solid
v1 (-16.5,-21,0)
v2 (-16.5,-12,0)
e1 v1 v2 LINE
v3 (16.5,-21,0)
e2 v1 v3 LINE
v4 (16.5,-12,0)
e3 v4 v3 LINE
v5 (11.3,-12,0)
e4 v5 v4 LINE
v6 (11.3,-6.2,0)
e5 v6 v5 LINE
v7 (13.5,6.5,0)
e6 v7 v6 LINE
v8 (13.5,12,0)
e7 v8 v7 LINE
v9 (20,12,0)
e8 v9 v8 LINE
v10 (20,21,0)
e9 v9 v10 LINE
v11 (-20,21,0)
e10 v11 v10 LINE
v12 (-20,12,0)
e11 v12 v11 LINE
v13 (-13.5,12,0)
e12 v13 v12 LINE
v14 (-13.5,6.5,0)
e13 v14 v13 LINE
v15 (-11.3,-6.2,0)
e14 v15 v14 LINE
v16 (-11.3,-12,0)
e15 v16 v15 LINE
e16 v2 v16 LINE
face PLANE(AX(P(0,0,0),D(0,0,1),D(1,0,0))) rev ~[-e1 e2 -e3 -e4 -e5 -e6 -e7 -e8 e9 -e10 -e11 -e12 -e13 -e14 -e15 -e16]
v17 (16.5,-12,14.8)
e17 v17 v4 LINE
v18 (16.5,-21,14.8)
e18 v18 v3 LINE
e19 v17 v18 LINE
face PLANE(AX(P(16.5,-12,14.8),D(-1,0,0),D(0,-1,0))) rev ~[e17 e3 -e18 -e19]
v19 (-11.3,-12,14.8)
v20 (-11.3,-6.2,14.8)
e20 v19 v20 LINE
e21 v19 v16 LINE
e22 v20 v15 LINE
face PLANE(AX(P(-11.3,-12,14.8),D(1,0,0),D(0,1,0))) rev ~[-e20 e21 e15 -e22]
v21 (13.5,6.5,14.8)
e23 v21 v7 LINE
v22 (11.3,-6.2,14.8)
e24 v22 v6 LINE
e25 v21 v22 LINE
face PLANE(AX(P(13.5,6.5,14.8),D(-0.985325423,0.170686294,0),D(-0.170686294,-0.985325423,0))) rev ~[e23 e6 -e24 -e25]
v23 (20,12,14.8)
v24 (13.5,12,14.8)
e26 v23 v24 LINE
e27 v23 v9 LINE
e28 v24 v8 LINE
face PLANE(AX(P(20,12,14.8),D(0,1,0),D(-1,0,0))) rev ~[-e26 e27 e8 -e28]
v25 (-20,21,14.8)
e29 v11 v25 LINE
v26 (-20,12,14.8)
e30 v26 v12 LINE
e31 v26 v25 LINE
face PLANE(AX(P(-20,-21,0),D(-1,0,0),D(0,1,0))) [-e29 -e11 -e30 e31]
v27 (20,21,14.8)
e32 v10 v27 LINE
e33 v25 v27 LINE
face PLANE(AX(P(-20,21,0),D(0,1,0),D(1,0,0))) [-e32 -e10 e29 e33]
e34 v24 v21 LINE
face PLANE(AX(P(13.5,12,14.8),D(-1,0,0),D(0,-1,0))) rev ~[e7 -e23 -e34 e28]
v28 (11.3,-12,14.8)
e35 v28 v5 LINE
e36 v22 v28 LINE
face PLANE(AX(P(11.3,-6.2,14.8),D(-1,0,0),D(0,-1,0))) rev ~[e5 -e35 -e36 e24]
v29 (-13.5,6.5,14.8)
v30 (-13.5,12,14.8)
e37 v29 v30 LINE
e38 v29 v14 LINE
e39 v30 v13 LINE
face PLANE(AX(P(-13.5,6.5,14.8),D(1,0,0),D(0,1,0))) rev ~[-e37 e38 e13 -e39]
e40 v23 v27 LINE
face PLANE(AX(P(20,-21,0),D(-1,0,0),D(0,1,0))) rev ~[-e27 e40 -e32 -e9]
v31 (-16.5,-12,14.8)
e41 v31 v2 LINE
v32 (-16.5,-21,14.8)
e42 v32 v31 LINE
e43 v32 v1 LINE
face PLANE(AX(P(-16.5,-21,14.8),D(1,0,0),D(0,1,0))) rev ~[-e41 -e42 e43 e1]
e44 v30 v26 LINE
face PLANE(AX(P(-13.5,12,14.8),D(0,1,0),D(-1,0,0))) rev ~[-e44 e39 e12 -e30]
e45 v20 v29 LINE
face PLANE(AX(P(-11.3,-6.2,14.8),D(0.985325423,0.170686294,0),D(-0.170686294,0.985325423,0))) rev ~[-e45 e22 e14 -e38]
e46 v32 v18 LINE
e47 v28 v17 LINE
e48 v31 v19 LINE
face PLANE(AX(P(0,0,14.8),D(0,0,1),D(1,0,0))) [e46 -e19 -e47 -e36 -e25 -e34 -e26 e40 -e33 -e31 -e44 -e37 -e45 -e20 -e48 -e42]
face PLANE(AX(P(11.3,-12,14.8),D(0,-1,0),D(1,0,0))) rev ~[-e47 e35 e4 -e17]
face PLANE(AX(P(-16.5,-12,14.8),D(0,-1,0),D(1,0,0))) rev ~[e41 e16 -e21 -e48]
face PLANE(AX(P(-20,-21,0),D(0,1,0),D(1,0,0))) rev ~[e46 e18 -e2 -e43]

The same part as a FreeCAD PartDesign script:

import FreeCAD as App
import Part
import Sketcher

V = App.Vector


def add_polygon(sketch, points):
    """Adds a closed chain of lines whose ends are joined by coincident constraints."""
    first, n = sketch.GeometryCount, len(points)
    for a, b in zip(points, points[1:] + points[:1]):
        sketch.addGeometry(Part.LineSegment(App.Vector(*a, 0), App.Vector(*b, 0)), False)
    for i in range(n):
        sketch.addConstraint(Sketcher.Constraint("Coincident", first + i, 2, first + (i + 1) % n, 1))

doc = App.newDocument("Part")
body = doc.addObject("PartDesign::Body", "Body")

# Sketch on XY plane
sketch1 = body.newObject("Sketcher::SketchObject", "Sketch")
sketch1.AttachmentSupport = (doc.getObject("XY_Plane"), [""])
sketch1.MapMode = "FlatFace"
add_polygon(sketch1, [(-20, 21), (-20, -21), (20, -21), (20, 21)])  # lines 0-3
sketch1.addConstraint([
    Sketcher.Constraint("Vertical", 0),
    Sketcher.Constraint("Horizontal", 1),
    Sketcher.Constraint("Vertical", 2),
    Sketcher.Constraint("Horizontal", 3),
    Sketcher.Constraint("Symmetric", 0, 2, 2, 2, -1, 1),
    Sketcher.Constraint("DistanceX", 1, 1, 1, 2, 40.0),
    Sketcher.Constraint("DistanceY", 0, 2, 0, 1, 42.0),
])
pad1 = body.newObject("PartDesign::Pad", "Pad")
pad1.Profile = sketch1
pad1.Length = 14.8

# Sketch on XY plane
sketch2 = body.newObject("Sketcher::SketchObject", "Sketch001")
sketch2.AttachmentSupport = (doc.getObject("XY_Plane"), [""])
sketch2.MapMode = "FlatFace"
sketch2.AttachmentOffset = App.Placement(V(0, 0, 14.8), App.Rotation())
add_polygon(sketch2, [(-13.5, 12), (-20, 12), (-20, -21), (-16.5, -21), (-16.5, -12), (-11.3, -12), (-11.3, -6.2), (-13.5, 6.5)])  # lines 0-7
add_polygon(sketch2, [(16.5, -12), (16.5, -21), (20, -21), (20, 12), (13.5, 12), (13.5, 6.5), (11.3, -6.2), (11.3, -12)])  # lines 8-15
sketch2.addConstraint([
    Sketcher.Constraint("Horizontal", 0),
    Sketcher.Constraint("Vertical", 1),
    Sketcher.Constraint("Horizontal", 2),
    Sketcher.Constraint("Vertical", 3),
    Sketcher.Constraint("Horizontal", 4),
    Sketcher.Constraint("Vertical", 5),
    Sketcher.Constraint("Vertical", 7),
    Sketcher.Constraint("Vertical", 8),
    Sketcher.Constraint("Horizontal", 9),
    Sketcher.Constraint("Vertical", 10),
    Sketcher.Constraint("Horizontal", 11),
    Sketcher.Constraint("Vertical", 12),
    Sketcher.Constraint("Vertical", 14),
    Sketcher.Constraint("Horizontal", 15),
    Sketcher.Constraint("Symmetric", 2, 2, 8, 2, -2),
    Sketcher.Constraint("Symmetric", 0, 2, 10, 2, -2),
    Sketcher.Constraint("Symmetric", 6, 2, 12, 2, -2),
    Sketcher.Constraint("Symmetric", 5, 2, 13, 2, -2),
    Sketcher.Constraint("Horizontal", 4, 2, 14, 2),
    Sketcher.Constraint("DistanceY", 1, 2, 1, 1, 33.0),
    Sketcher.Constraint("DistanceY", 3, 1, 3, 2, 9.0),
    Sketcher.Constraint("DistanceX", 0, 2, 0, 1, 6.5),
    Sketcher.Constraint("DistanceX", 2, 1, 2, 2, 3.5),
    Sketcher.Constraint("DistanceX", 4, 1, 4, 2, 5.2),
    Sketcher.Constraint("DistanceY", 5, 1, 5, 2, 5.8),
    Sketcher.Constraint("DistanceY", 7, 1, 7, 2, 5.5),
    Sketcher.Constraint("DistanceX", 0, 2, -1, 1, 20.0),
    Sketcher.Constraint("DistanceY", -1, 1, 0, 2, 12.0),
])
pocket1 = body.newObject("PartDesign::Pocket", "Pocket")
pocket1.Profile = sketch2
pocket1.Length = 25

doc.recompute()
